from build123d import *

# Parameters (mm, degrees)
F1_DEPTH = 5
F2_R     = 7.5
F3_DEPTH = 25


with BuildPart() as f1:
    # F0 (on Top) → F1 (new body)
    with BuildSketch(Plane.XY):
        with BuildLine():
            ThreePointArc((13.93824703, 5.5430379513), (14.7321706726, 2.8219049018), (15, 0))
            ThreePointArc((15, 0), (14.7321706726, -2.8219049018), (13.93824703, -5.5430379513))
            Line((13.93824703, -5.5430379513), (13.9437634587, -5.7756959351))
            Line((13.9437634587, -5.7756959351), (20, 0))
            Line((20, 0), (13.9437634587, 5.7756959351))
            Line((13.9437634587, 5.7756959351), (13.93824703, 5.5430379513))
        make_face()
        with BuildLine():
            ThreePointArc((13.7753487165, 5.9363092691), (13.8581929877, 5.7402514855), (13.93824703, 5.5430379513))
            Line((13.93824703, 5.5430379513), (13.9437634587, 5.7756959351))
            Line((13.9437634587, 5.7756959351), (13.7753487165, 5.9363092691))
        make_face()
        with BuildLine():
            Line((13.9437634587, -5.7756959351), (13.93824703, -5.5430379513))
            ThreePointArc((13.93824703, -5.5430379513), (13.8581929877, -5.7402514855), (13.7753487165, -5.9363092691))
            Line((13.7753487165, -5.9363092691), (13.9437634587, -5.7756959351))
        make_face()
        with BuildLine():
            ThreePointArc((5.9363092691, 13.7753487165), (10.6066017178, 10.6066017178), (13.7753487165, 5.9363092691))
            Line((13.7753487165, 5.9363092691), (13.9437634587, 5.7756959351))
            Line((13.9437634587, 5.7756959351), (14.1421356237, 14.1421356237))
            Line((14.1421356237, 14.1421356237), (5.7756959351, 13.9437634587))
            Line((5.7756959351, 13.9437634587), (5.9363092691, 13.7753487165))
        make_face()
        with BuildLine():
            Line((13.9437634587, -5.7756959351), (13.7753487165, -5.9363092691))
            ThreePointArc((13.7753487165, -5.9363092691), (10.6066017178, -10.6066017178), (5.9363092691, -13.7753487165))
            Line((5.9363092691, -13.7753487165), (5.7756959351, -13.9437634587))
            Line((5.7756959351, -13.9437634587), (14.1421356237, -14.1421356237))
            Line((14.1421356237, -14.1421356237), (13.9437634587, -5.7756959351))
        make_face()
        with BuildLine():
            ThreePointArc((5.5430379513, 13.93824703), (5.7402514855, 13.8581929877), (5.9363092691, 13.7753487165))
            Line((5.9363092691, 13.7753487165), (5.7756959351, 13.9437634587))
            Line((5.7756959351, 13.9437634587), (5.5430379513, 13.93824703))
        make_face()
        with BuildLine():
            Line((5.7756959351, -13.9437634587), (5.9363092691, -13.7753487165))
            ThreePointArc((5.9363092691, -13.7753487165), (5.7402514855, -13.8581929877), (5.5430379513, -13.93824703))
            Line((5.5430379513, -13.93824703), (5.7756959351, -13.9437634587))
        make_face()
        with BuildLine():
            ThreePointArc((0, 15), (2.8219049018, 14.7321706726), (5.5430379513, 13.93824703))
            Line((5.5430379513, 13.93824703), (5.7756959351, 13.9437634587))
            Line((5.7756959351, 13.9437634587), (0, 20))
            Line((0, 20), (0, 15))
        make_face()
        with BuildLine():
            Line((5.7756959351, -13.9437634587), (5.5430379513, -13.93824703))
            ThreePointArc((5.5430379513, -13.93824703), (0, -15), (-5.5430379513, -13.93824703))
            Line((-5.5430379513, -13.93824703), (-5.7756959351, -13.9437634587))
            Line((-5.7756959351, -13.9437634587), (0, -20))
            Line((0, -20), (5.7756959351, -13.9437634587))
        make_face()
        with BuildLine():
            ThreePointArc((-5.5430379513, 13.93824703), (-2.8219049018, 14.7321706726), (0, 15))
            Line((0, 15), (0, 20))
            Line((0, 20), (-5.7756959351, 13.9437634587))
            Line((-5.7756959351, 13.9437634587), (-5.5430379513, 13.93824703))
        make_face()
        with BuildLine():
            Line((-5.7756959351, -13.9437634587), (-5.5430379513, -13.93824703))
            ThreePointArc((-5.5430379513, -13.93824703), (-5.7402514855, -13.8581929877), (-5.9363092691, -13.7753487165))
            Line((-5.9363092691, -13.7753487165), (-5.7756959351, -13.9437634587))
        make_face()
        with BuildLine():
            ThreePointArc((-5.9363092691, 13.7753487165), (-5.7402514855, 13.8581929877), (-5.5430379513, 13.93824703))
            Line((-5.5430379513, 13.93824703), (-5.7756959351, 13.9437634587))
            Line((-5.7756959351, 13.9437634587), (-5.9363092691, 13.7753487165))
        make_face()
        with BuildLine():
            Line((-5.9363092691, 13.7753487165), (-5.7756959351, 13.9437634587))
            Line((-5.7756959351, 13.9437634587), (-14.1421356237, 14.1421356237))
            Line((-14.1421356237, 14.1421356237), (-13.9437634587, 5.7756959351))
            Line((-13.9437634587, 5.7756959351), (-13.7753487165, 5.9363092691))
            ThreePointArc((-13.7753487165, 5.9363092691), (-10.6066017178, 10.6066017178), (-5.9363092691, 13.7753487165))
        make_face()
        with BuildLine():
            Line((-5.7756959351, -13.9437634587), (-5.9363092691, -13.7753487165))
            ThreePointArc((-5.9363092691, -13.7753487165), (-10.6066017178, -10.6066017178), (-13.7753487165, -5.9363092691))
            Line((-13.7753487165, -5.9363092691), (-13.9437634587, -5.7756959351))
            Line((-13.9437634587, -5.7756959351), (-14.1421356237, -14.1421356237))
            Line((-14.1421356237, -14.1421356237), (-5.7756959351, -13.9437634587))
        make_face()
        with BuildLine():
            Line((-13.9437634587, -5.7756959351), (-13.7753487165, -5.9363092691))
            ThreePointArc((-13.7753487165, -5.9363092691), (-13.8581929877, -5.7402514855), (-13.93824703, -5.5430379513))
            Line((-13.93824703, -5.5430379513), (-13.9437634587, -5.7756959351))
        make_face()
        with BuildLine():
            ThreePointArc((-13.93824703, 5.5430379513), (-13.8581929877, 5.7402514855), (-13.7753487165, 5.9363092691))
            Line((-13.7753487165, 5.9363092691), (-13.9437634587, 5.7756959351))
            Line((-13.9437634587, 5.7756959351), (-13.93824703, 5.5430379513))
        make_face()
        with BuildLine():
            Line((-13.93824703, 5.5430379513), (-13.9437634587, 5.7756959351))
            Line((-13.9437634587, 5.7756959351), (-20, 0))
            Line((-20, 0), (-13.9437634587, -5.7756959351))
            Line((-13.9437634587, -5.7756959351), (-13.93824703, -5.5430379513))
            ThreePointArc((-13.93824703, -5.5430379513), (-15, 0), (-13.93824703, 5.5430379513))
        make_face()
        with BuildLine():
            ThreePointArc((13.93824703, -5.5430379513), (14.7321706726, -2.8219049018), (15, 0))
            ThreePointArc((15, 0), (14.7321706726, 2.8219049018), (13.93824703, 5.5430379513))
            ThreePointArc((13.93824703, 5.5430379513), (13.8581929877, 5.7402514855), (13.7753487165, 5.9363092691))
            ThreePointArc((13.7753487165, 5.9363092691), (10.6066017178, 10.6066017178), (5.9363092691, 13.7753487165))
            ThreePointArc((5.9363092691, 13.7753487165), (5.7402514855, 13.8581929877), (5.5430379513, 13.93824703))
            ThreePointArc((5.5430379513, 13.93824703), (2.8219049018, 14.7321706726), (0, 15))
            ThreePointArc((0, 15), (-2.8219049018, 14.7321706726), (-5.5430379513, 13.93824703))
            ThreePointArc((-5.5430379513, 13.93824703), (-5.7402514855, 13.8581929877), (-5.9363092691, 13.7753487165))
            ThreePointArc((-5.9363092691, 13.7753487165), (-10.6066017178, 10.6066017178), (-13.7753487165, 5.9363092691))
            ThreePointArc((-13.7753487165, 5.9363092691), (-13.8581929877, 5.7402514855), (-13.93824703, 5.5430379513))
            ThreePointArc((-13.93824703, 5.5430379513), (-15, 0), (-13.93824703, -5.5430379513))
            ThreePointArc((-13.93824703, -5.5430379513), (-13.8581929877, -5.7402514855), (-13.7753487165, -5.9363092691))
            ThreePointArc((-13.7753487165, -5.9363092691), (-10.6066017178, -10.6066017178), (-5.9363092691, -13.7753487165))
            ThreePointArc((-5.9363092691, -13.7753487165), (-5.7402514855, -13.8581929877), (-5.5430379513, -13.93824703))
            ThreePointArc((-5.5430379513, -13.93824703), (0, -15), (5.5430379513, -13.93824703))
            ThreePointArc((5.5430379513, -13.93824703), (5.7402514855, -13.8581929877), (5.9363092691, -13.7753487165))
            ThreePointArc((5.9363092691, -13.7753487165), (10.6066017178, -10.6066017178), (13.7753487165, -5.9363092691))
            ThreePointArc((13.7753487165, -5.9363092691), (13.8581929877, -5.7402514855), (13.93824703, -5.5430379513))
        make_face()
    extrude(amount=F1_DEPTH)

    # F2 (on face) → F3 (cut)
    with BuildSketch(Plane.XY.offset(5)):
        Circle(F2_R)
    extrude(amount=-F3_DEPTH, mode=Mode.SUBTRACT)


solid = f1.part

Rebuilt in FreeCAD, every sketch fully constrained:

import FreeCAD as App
import Part
import Sketcher

V = App.Vector
Q = App.Units.Quantity


def add_polygon(sketch, points):
    """Adds a closed chain of lines whose ends are joined by coincident constraints."""
    first, n = sketch.GeometryCount, len(points)
    for a, b in zip(points, points[1:] + points[:1]):
        sketch.addGeometry(Part.LineSegment(App.Vector(*a, 0), App.Vector(*b, 0)), False)
    for i in range(n):
        sketch.addConstraint(Sketcher.Constraint("Coincident", first + i, 2, first + (i + 1) % n, 1))

doc = App.newDocument("Part")
body = doc.addObject("PartDesign::Body", "Body")

sketch1 = doc.addObject("Sketcher::SketchObject", "Sketch")
body.addObject(sketch1)
sketch1.AttachmentSupport = (doc.XY_Plane, [""])
sketch1.MapMode = "FlatFace"
add_polygon(sketch1, [(-14, -6), (-14, -14), (-6, -14), (0, -20), (6, -14), (14, -14), (14, -6), (20, 0), (14, 6), (14, 14), (6, 14), (0, 20), (-6, 14), (-14, 14), (-14, 6), (-20, 0)])
sketch1.addConstraint([
    Sketcher.Constraint("Symmetric", 0, 2, 8, 2, -1, 1),
    Sketcher.Constraint("Symmetric", 1, 2, 9, 2, -1, 1),
    Sketcher.Constraint("Symmetric", 2, 2, 10, 2, -1, 1),
    Sketcher.Constraint("Symmetric", 3, 2, 11, 2, -1, 1),
    Sketcher.Constraint("Symmetric", 4, 2, 12, 2, -1, 1),
    Sketcher.Constraint("Symmetric", 5, 2, 13, 2, -1, 1),
    Sketcher.Constraint("Symmetric", 6, 2, 14, 2, -1, 1),
    Sketcher.Constraint("Symmetric", 7, 2, 15, 2, -1, 1),
    Sketcher.Constraint("Symmetric", 1, 2, 3, 2, -2),
    Sketcher.Constraint("Symmetric", 0, 2, 4, 2, -2),
    Sketcher.Constraint("Symmetric", 7, 2, 13, 2, -2),
    Sketcher.Constraint("PointOnObject", 2, 2, -2),
    Sketcher.Constraint("PointOnObject", 6, 2, -1),
    Sketcher.Constraint("Perpendicular", 0, 4),
    Sketcher.Constraint("Perpendicular", 2, 6),
    Sketcher.Constraint("Equal", 0, 1),
    Sketcher.Constraint("Equal", 1, 2),
    Sketcher.Constraint("Equal", 5, 6),
    Sketcher.Constraint("DistanceY", 2, 2, -1, 1, Q("20 mm")),
    Sketcher.Constraint("DistanceX", 0, 2, 5, 2, Q("28.085899 mm")),
    Sketcher.Constraint("Distance", 0, Q("8.368791 mm")),
])
pad1 = doc.addObject("PartDesign::Pad", "Pad")
body.addObject(pad1)
pad1.Profile = sketch1
pad1.Length = 5

sketch2 = doc.addObject("Sketcher::SketchObject", "Sketch001")
body.addObject(sketch2)
sketch2.AttachmentSupport = (doc.XY_Plane, [""])
sketch2.MapMode = "FlatFace"
sketch2.AttachmentOffset = App.Placement(V(0, 0, 5), App.Rotation())
sketch2.addGeometry(Part.Circle(V(0, 0, 0), V(0, 0, 1), 8), False)
sketch2.addConstraint([
    Sketcher.Constraint("Coincident", 0, 3, -1, 1),
    Sketcher.Constraint("Diameter", 0, Q("15 mm")),
])
pocket1 = doc.addObject("PartDesign::Pocket", "Pocket")
body.addObject(pocket1)
pocket1.Profile = sketch2
pocket1.Length = 25

doc.recompute()
